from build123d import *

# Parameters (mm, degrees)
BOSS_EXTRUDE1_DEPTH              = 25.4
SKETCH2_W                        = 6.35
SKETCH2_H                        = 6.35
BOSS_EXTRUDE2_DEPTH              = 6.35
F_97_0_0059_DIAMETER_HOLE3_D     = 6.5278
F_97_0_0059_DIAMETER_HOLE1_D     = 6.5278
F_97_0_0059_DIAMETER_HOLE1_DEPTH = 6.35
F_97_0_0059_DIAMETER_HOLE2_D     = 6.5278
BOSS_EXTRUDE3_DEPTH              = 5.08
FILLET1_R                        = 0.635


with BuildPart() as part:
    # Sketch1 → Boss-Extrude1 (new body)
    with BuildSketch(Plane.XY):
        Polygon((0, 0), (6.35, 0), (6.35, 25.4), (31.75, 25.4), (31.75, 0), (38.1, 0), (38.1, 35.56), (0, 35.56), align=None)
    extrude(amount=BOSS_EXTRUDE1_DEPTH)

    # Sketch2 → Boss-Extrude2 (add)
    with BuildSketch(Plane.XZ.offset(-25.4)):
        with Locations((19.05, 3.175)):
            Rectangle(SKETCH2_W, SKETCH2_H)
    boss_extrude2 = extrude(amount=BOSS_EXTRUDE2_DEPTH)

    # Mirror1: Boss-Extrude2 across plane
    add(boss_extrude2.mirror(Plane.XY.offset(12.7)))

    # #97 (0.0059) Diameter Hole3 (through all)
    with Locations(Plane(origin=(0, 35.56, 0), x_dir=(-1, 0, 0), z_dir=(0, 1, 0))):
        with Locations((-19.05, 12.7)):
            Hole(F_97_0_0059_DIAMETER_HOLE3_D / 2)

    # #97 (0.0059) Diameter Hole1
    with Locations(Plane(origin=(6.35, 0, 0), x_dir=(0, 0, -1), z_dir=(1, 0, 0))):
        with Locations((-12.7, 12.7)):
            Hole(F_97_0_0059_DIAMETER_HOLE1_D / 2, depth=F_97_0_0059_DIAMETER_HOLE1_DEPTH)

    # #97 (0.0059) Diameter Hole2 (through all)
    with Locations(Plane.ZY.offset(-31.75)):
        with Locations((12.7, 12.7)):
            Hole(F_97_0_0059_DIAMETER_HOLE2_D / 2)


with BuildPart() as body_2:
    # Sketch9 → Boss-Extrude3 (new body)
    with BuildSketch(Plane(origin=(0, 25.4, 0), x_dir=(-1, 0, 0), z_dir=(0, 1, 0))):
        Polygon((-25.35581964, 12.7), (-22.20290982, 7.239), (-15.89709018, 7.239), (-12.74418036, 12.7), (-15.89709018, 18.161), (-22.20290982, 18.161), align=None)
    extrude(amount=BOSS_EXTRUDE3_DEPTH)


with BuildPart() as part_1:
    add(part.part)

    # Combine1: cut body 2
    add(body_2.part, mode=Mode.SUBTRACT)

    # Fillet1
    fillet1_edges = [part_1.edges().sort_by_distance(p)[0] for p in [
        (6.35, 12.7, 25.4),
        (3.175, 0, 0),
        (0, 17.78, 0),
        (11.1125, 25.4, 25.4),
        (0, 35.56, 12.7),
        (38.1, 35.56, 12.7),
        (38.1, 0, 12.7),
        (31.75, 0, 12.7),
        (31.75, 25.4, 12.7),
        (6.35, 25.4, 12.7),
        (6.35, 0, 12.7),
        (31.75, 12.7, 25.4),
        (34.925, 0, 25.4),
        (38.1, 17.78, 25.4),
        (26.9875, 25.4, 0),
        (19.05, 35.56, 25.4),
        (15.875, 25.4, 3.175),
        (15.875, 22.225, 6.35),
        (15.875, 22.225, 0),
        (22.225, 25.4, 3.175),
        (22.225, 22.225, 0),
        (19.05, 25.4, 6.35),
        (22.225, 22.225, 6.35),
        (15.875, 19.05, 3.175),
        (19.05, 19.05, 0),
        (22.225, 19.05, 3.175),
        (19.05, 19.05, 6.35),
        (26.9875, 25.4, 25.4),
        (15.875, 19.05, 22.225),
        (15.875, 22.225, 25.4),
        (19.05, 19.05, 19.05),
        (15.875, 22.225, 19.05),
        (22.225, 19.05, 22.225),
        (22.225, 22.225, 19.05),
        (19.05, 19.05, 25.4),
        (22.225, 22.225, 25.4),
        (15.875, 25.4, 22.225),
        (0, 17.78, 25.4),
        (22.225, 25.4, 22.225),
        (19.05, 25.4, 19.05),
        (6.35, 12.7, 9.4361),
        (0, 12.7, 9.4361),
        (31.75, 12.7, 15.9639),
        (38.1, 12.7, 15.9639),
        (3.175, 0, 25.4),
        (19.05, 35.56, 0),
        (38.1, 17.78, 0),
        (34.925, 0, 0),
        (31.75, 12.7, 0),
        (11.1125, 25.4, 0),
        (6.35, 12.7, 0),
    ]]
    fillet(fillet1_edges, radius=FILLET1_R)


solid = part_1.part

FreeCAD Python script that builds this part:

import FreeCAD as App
import Part
import Sketcher

V = App.Vector
Q = App.Units.Quantity


def edges_at(feature, points):
    """Names of the edges that pass closest to the given points."""
    edges = feature.Shape.Edges
    near = lambda p: min(range(len(edges)), key=lambda i: edges[i].distToShape(Part.Vertex(*p))[0])
    return sorted({f"Edge{near(p) + 1}" for p in points})

doc = App.newDocument("Part")
body = doc.addObject("PartDesign::Body", "Body")

sketch1 = doc.addObject("Sketcher::SketchObject", "Sketch")
body.addObject(sketch1)
sketch1.AttachmentSupport = (doc.XY_Plane, [""])
sketch1.MapMode = "FlatFace"
sketch1.addGeometry(Part.LineSegment(V(0, 0, 0), V(6, 0, 0)), False)
sketch1.addGeometry(Part.LineSegment(V(6, 0, 0), V(6, 25, 0)), False)
sketch1.addGeometry(Part.LineSegment(V(6, 25, 0), V(32, 25, 0)), False)
sketch1.addGeometry(Part.LineSegment(V(32, 25, 0), V(32, 0, 0)), False)
sketch1.addGeometry(Part.LineSegment(V(32, 0, 0), V(38, 0, 0)), False)
sketch1.addGeometry(Part.LineSegment(V(38, 0, 0), V(38, 36, 0)), False)
sketch1.addGeometry(Part.LineSegment(V(38, 36, 0), V(0, 36, 0)), False)
sketch1.addGeometry(Part.LineSegment(V(0, 36, 0), V(0, 0, 0)), False)
sketch1.addConstraint(Sketcher.Constraint("Coincident", 0, 2, 1, 1))
sketch1.addConstraint(Sketcher.Constraint("Coincident", 1, 2, 2, 1))
sketch1.addConstraint(Sketcher.Constraint("Coincident", 2, 2, 3, 1))
sketch1.addConstraint(Sketcher.Constraint("Coincident", 3, 2, 4, 1))
sketch1.addConstraint(Sketcher.Constraint("Coincident", 4, 2, 5, 1))
sketch1.addConstraint(Sketcher.Constraint("Coincident", 5, 2, 6, 1))
sketch1.addConstraint(Sketcher.Constraint("Coincident", 6, 2, 7, 1))
sketch1.addConstraint(Sketcher.Constraint("Coincident", 7, 2, 0, 1))
sketch1.addConstraint(Sketcher.Constraint("Horizontal", 0))
sketch1.addConstraint(Sketcher.Constraint("Vertical", 1))
sketch1.addConstraint(Sketcher.Constraint("Horizontal", 2))
sketch1.addConstraint(Sketcher.Constraint("Vertical", 3))
sketch1.addConstraint(Sketcher.Constraint("Horizontal", 4))
sketch1.addConstraint(Sketcher.Constraint("Vertical", 5))
sketch1.addConstraint(Sketcher.Constraint("Horizontal", 6))
sketch1.addConstraint(Sketcher.Constraint("Vertical", 7))
sketch1.addConstraint(Sketcher.Constraint("Coincident", 7, 2, -1, 1))
sketch1.addConstraint(Sketcher.Constraint("PointOnObject", 3, 2, -1))
sketch1.addConstraint(Sketcher.Constraint("Equal", 0, 4))
sketch1.addConstraint(Sketcher.Constraint("Equal", 2, 1))
sketch1.addConstraint(Sketcher.Constraint("DistanceX", 2, 1, 2, 2, Q("1 in")))
sketch1.addConstraint(Sketcher.Constraint("DistanceX", 6, 2, 6, 1, Q("1.5 in")))
sketch1.addConstraint(Sketcher.Constraint("DistanceY", 5, 1, 5, 2, Q("1.4 in")))
pad1 = doc.addObject("PartDesign::Pad", "Pad")
body.addObject(pad1)
pad1.Profile = sketch1
pad1.Length = Q("1 in")

sketch2 = doc.addObject("Sketcher::SketchObject", "Sketch001")
body.addObject(sketch2)
sketch2.AttachmentSupport = (doc.XZ_Plane, [""])
sketch2.MapMode = "FlatFace"
sketch2.AttachmentOffset = App.Placement(V(0, 0, -1 * 25.4), App.Rotation())
sketch2.addGeometry(Part.LineSegment(V(16, 6, 0), V(16, 0, 0)), False)
sketch2.addGeometry(Part.LineSegment(V(16, 0, 0), V(22, 0, 0)), False)
sketch2.addGeometry(Part.LineSegment(V(22, 0, 0), V(22, 6, 0)), False)
sketch2.addGeometry(Part.LineSegment(V(22, 6, 0), V(16, 6, 0)), False)
sketch2.addConstraint(Sketcher.Constraint("Coincident", 0, 2, 1, 1))
sketch2.addConstraint(Sketcher.Constraint("Coincident", 1, 2, 2, 1))
sketch2.addConstraint(Sketcher.Constraint("Coincident", 2, 2, 3, 1))
sketch2.addConstraint(Sketcher.Constraint("Coincident", 3, 2, 0, 1))
sketch2.addConstraint(Sketcher.Constraint("Vertical", 0))
sketch2.addConstraint(Sketcher.Constraint("Horizontal", 1))
sketch2.addConstraint(Sketcher.Constraint("Vertical", 2))
sketch2.addConstraint(Sketcher.Constraint("Horizontal", 3))
sketch2.addConstraint(Sketcher.Constraint("PointOnObject", 0, 2, -1))
sketch2.addConstraint(Sketcher.Constraint("Equal", 3, 0))
sketch2.addConstraint(Sketcher.Constraint("DistanceX", 1, 1, 1, 2, Q("0.25 in")))
sketch2.addConstraint(Sketcher.Constraint("DistanceX", -1, 1, 0, 2, Q("0.625 in")))
pad2 = doc.addObject("PartDesign::Pad", "Pad001")
body.addObject(pad2)
pad2.Profile = sketch2
pad2.Length = Q("0.25 in")
doc.recompute()

datumplane = doc.addObject("PartDesign::Plane", "DatumPlane")
body.addObject(datumplane)
datumplane.AttachmentSupport = (doc.XY_Plane, [""])
datumplane.MapMode = "FlatFace"
datumplane.AttachmentOffset = App.Placement(V(0, 0, 0.5 * 25.4), App.Rotation())
mirrored = doc.addObject("PartDesign::Mirrored", "Mirrored")
body.addObject(mirrored)
mirrored.Originals = [pad2]
mirrored.MirrorPlane = (datumplane, [""])
body.Tip = mirrored

sketch3 = doc.addObject("Sketcher::SketchObject", "Sketch002")
body.addObject(sketch3)
sketch3.AttachmentSupport = (doc.XZ_Plane, [""])
sketch3.MapMode = "FlatFace"
sketch3.AttachmentOffset = App.Placement(V(0, 0, -1.4 * 25.4), App.Rotation())
sketch3.addGeometry(Part.Circle(V(19.1, 12.7, 0), V(0, 0, 1), 3.3), False)
sketch3.addConstraint(Sketcher.Constraint("Diameter", 0, Q("0.257 in")))
sketch3.addConstraint(Sketcher.Constraint("DistanceY", -1, 1, 0, 3, Q("0.5 in")))
sketch3.addConstraint(Sketcher.Constraint("DistanceX", -1, 1, 0, 3, Q("0.75 in")))
doc.recompute()
hole = doc.addObject("PartDesign::Hole", "Hole")
body.addObject(hole)
hole.Profile = sketch3
hole.ThreadType = "None"
hole.Diameter = Q("0.257 in")
hole.DepthType = "ThroughAll"
hole.Reversed = True

sketch4 = doc.addObject("Sketcher::SketchObject", "Sketch003")
body.addObject(sketch4)
sketch4.AttachmentSupport = (doc.YZ_Plane, [""])
sketch4.MapMode = "FlatFace"
sketch4.AttachmentOffset = App.Placement(V(0, 0, 0.25 * 25.4), App.Rotation())
sketch4.addGeometry(Part.Circle(V(12.7, 12.7, 0), V(0, 0, 1), 3.3), False)
sketch4.addConstraint(Sketcher.Constraint("Diameter", 0, Q("0.257 in")))
sketch4.addConstraint(Sketcher.Constraint("DistanceX", -1, 1, 0, 3, Q("0.5 in")))
sketch4.addConstraint(Sketcher.Constraint("DistanceY", -1, 1, 0, 3, Q("0.5 in")))
doc.recompute()
hole2 = doc.addObject("PartDesign::Hole", "Hole001")
body.addObject(hole2)
hole2.Profile = sketch4
hole2.ThreadType = "None"
hole2.Diameter = Q("0.257 in")
hole2.DepthType = "Dimension"
hole2.Depth = Q("0.25 in")
hole2.DrillPoint = "Flat"

sketch5 = doc.addObject("Sketcher::SketchObject", "Sketch004")
body.addObject(sketch5)
sketch5.AttachmentSupport = (doc.YZ_Plane, [""])
sketch5.MapMode = "FlatFace"
sketch5.AttachmentOffset = App.Placement(V(0, 0, 1.25 * 25.4), App.Rotation())
sketch5.addGeometry(Part.Circle(V(12.7, 12.7, 0), V(0, 0, 1), 3.3), False)
sketch5.addConstraint(Sketcher.Constraint("Diameter", 0, Q("0.257 in")))
sketch5.addConstraint(Sketcher.Constraint("DistanceX", -1, 1, 0, 3, Q("0.5 in")))
sketch5.addConstraint(Sketcher.Constraint("DistanceY", -1, 1, 0, 3, Q("0.5 in")))
doc.recompute()
hole3 = doc.addObject("PartDesign::Hole", "Hole002")
body.addObject(hole3)
hole3.Profile = sketch5
hole3.ThreadType = "None"
hole3.Diameter = Q("0.257 in")
hole3.DepthType = "ThroughAll"
hole3.Reversed = True
body2 = doc.addObject("PartDesign::Body", "Body001")

sketch6 = doc.addObject("Sketcher::SketchObject", "Sketch005")
body2.addObject(sketch6)
sketch6.AttachmentSupport = (doc.getObject("XZ_Plane001"), [""])
sketch6.MapMode = "FlatFace"
sketch6.AttachmentOffset = App.Placement(V(0, 0, -1 * 25.4), App.Rotation())
sketch6.addGeometry(Part.LineSegment(V(25, 13, 0), V(22, 7, 0)), False)
sketch6.addGeometry(Part.LineSegment(V(22, 7, 0), V(16, 7, 0)), False)
sketch6.addGeometry(Part.LineSegment(V(16, 7, 0), V(13, 13, 0)), False)
sketch6.addGeometry(Part.LineSegment(V(13, 13, 0), V(16, 18, 0)), False)
sketch6.addGeometry(Part.LineSegment(V(16, 18, 0), V(22, 18, 0)), False)
sketch6.addGeometry(Part.LineSegment(V(22, 18, 0), V(25, 13, 0)), False)
sketch6.addConstraint(Sketcher.Constraint("Coincident", 0, 2, 1, 1))
sketch6.addConstraint(Sketcher.Constraint("Coincident", 1, 2, 2, 1))
sketch6.addConstraint(Sketcher.Constraint("Coincident", 2, 2, 3, 1))
sketch6.addConstraint(Sketcher.Constraint("Coincident", 3, 2, 4, 1))
sketch6.addConstraint(Sketcher.Constraint("Coincident", 4, 2, 5, 1))
sketch6.addConstraint(Sketcher.Constraint("Coincident", 5, 2, 0, 1))
sketch6.addConstraint(Sketcher.Constraint("Horizontal", 1))
sketch6.addConstraint(Sketcher.Constraint("Horizontal", 4))
sketch6.addConstraint(Sketcher.Constraint("Parallel", 0, 3))
sketch6.addConstraint(Sketcher.Constraint("Parallel", 2, 5))
sketch6.addConstraint(Sketcher.Constraint("Horizontal", 2, 2, 5, 2))
sketch6.addConstraint(Sketcher.Constraint("Vertical", 1, 2, 3, 2))
sketch6.addConstraint(Sketcher.Constraint("Vertical", 0, 2, 4, 2))
sketch6.addConstraint(Sketcher.Constraint("Angle", 0, Q("-120 deg")))
sketch6.addConstraint(Sketcher.Constraint("DistanceY", -1, 1, 2, 2, Q("0.5 in")))
sketch6.addConstraint(Sketcher.Constraint("DistanceY", 1, 2, 3, 2, Q("0.43 in")))
sketch6.addConstraint(Sketcher.Constraint("DistanceX", 1, 2, 1, 1, Q("6.30582 mm")))
sketch6.addConstraint(Sketcher.Constraint("DistanceX", -1, 1, 0, 2, Q("22.20291 mm")))
pad3 = doc.addObject("PartDesign::Pad", "Pad002")
body2.addObject(pad3)
pad3.Profile = sketch6
pad3.Length = Q("0.2 in")
pad3.Reversed = True
doc.recompute()

boolean = doc.addObject("PartDesign::Boolean", "Boolean")
body.addObject(boolean)
boolean.Type = "Cut"
boolean.addObjects([body2])
doc.recompute()

fillet = doc.addObject("PartDesign::Fillet", "Fillet")
body.addObject(fillet)
fillet.Base = (boolean, edges_at(boolean, [
    (6.35, 12.7, 25.4),
    (3.175, 0, 0),
    (0, 17.78, 0),
    (11.113, 25.4, 25.4),
    (0, 35.56, 12.7),
    (38.1, 35.56, 12.7),
    (38.1, 0, 12.7),
    (31.75, 0, 12.7),
    (31.75, 25.4, 12.7),
    (6.35, 25.4, 12.7),
    (6.35, 0, 12.7),
    (31.75, 12.7, 25.4),
    (34.925, 0, 25.4),
    (38.1, 17.78, 25.4),
    (26.988, 25.4, 0),
    (19.05, 35.56, 25.4),
    (15.875, 25.4, 3.175),
    (15.875, 22.225, 6.35),
    (15.875, 22.225, 0),
    (22.225, 25.4, 3.175),
    (22.225, 22.225, 0),
    (19.05, 25.4, 6.35),
    (22.225, 22.225, 6.35),
    (15.875, 19.05, 3.175),
    (19.05, 19.05, 0),
    (22.225, 19.05, 3.175),
    (19.05, 19.05, 6.35),
    (26.988, 25.4, 25.4),
    (15.875, 19.05, 22.225),
    (15.875, 22.225, 25.4),
    (19.05, 19.05, 19.05),
    (15.875, 22.225, 19.05),
    (22.225, 19.05, 22.225),
    (22.225, 22.225, 19.05),
    (19.05, 19.05, 25.4),
    (22.225, 22.225, 25.4),
    (15.875, 25.4, 22.225),
    (0, 17.78, 25.4),
    (22.225, 25.4, 22.225),
    (19.05, 25.4, 19.05),
    (6.35, 12.7, 9.436),
    (0, 12.7, 9.436),
    (31.75, 12.7, 15.964),
    (38.1, 12.7, 15.964),
    (3.175, 0, 25.4),
    (19.05, 35.56, 0),
    (38.1, 17.78, 0),
    (34.925, 0, 0),
    (31.75, 12.7, 0),
    (11.113, 25.4, 0),
    (6.35, 12.7, 0),
]))
fillet.Radius = Q("0.025 in")

doc.recompute()
